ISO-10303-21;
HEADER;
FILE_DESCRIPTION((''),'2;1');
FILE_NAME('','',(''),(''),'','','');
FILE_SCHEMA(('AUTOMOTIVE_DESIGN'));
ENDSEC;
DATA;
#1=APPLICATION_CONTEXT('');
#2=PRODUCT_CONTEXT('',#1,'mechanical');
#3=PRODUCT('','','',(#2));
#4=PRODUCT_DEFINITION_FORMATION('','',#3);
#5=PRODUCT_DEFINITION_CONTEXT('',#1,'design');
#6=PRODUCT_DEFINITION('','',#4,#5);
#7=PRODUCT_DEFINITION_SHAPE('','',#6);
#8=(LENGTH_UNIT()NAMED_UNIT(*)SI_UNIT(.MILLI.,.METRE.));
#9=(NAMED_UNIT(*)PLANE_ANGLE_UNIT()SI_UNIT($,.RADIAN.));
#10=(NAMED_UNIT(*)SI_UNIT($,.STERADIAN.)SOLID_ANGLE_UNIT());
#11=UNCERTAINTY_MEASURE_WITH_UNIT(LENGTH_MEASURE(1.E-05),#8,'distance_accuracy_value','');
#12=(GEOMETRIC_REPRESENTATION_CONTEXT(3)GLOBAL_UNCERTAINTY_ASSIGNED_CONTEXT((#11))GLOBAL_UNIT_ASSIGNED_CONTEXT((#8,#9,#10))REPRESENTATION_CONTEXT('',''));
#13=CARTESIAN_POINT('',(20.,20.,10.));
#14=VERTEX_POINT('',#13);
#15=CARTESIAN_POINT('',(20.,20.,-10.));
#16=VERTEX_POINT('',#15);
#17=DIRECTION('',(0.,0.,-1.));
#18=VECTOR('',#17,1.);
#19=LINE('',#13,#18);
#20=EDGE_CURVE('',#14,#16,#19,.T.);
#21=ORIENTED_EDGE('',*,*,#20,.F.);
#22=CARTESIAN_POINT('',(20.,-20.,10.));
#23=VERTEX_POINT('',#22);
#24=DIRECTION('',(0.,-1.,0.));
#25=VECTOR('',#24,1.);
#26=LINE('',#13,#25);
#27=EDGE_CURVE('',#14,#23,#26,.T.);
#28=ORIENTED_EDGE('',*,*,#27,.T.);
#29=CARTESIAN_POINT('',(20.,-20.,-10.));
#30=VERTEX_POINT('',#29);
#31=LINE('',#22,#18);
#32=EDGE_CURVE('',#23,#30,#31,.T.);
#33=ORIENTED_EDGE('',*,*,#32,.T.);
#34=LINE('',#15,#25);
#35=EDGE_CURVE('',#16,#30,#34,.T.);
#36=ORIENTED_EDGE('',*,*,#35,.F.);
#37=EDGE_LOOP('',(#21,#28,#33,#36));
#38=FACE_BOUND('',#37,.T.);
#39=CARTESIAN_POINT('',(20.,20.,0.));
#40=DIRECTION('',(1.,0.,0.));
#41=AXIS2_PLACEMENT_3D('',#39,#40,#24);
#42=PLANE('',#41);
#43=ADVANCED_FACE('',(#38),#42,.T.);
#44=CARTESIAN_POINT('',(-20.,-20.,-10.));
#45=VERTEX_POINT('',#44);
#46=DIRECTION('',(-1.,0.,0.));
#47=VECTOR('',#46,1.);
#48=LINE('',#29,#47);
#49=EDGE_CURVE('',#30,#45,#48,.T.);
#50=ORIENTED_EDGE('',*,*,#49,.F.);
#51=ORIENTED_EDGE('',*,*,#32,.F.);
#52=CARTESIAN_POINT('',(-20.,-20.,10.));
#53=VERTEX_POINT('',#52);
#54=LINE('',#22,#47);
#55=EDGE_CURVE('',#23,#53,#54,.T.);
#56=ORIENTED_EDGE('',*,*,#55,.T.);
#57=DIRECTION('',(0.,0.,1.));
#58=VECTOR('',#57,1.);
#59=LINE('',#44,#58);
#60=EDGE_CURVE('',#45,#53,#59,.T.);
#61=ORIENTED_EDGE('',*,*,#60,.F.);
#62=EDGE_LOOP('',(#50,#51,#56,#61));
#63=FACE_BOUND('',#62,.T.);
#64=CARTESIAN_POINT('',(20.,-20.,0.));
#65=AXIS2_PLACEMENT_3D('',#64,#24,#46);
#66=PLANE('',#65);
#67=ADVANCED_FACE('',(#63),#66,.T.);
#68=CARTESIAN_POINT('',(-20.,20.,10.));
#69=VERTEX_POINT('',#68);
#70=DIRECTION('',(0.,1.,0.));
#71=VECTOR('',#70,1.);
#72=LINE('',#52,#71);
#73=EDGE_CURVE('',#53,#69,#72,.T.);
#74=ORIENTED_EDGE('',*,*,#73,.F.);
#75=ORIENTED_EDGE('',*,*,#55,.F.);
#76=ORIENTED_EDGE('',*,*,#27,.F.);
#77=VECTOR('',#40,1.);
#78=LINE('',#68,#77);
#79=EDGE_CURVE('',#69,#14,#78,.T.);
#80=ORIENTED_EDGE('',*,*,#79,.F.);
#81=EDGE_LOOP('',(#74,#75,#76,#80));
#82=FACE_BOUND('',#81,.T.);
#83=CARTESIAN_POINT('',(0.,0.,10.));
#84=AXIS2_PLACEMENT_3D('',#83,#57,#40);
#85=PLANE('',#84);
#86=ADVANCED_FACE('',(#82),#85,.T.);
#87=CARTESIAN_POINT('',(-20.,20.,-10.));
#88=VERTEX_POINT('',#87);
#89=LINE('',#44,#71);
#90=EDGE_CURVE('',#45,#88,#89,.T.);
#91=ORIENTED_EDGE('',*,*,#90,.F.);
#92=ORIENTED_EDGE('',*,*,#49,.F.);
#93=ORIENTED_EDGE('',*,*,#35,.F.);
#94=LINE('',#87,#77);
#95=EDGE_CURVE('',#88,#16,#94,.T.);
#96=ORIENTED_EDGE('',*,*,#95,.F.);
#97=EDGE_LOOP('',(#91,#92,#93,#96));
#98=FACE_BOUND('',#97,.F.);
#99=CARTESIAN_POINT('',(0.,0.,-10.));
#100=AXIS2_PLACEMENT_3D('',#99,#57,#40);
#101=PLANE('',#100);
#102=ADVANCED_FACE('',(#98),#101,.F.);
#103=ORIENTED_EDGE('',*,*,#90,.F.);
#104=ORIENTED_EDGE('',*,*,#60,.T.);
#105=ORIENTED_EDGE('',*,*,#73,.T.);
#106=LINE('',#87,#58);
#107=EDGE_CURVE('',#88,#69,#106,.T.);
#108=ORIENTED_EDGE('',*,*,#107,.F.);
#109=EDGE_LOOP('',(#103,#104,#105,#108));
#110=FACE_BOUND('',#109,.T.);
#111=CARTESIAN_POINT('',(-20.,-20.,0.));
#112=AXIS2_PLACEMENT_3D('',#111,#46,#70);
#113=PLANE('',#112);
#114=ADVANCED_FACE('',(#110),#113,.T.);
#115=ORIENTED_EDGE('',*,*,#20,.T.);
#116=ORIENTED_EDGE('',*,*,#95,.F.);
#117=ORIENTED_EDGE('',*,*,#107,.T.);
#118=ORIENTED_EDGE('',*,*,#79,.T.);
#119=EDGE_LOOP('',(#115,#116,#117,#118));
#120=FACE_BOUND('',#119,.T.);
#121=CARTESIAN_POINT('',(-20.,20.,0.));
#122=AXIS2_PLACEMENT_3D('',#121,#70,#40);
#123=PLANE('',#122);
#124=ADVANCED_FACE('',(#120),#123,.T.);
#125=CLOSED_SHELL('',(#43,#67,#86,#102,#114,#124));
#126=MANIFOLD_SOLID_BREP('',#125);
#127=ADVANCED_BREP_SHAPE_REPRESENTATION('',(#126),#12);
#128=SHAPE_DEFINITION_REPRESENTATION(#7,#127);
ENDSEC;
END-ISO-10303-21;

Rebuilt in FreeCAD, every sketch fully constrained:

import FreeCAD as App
import Part
import Sketcher

V = App.Vector
Q = App.Units.Quantity


def add_polygon(sketch, points):
    """Adds a closed chain of lines whose ends are joined by coincident constraints."""
    first, n = sketch.GeometryCount, len(points)
    for a, b in zip(points, points[1:] + points[:1]):
        sketch.addGeometry(Part.LineSegment(App.Vector(*a, 0), App.Vector(*b, 0)), False)
    for i in range(n):
        sketch.addConstraint(Sketcher.Constraint("Coincident", first + i, 2, first + (i + 1) % n, 1))

doc = App.newDocument("Part")
body = doc.addObject("PartDesign::Body", "Body")

# Sketch on XY plane
sketch1 = body.newObject("Sketcher::SketchObject", "Sketch")
sketch1.AttachmentSupport = (doc.getObject("XY_Plane"), [""])
sketch1.MapMode = "FlatFace"
add_polygon(sketch1, [(20, 20), (-20, 20), (-20, -20), (20, -20)])  # lines 0-3
sketch1.addConstraint(Sketcher.Constraint("Horizontal", 0))
sketch1.addConstraint(Sketcher.Constraint("Vertical", 1))
sketch1.addConstraint(Sketcher.Constraint("Horizontal", 2))
sketch1.addConstraint(Sketcher.Constraint("Vertical", 3))
sketch1.addConstraint(Sketcher.Constraint("Symmetric", 0, 2, 2, 2, -1, 1))
sketch1.addConstraint(Sketcher.Constraint("Equal", 2, 1))
sketch1.addConstraint(Sketcher.Constraint("DistanceX", 0, 2, 0, 1, Q("40 mm")))
pad1 = body.newObject("PartDesign::Pad", "Pad")
pad1.Profile = sketch1
pad1.Length = 20
pad1.Midplane = True

doc.recompute()
